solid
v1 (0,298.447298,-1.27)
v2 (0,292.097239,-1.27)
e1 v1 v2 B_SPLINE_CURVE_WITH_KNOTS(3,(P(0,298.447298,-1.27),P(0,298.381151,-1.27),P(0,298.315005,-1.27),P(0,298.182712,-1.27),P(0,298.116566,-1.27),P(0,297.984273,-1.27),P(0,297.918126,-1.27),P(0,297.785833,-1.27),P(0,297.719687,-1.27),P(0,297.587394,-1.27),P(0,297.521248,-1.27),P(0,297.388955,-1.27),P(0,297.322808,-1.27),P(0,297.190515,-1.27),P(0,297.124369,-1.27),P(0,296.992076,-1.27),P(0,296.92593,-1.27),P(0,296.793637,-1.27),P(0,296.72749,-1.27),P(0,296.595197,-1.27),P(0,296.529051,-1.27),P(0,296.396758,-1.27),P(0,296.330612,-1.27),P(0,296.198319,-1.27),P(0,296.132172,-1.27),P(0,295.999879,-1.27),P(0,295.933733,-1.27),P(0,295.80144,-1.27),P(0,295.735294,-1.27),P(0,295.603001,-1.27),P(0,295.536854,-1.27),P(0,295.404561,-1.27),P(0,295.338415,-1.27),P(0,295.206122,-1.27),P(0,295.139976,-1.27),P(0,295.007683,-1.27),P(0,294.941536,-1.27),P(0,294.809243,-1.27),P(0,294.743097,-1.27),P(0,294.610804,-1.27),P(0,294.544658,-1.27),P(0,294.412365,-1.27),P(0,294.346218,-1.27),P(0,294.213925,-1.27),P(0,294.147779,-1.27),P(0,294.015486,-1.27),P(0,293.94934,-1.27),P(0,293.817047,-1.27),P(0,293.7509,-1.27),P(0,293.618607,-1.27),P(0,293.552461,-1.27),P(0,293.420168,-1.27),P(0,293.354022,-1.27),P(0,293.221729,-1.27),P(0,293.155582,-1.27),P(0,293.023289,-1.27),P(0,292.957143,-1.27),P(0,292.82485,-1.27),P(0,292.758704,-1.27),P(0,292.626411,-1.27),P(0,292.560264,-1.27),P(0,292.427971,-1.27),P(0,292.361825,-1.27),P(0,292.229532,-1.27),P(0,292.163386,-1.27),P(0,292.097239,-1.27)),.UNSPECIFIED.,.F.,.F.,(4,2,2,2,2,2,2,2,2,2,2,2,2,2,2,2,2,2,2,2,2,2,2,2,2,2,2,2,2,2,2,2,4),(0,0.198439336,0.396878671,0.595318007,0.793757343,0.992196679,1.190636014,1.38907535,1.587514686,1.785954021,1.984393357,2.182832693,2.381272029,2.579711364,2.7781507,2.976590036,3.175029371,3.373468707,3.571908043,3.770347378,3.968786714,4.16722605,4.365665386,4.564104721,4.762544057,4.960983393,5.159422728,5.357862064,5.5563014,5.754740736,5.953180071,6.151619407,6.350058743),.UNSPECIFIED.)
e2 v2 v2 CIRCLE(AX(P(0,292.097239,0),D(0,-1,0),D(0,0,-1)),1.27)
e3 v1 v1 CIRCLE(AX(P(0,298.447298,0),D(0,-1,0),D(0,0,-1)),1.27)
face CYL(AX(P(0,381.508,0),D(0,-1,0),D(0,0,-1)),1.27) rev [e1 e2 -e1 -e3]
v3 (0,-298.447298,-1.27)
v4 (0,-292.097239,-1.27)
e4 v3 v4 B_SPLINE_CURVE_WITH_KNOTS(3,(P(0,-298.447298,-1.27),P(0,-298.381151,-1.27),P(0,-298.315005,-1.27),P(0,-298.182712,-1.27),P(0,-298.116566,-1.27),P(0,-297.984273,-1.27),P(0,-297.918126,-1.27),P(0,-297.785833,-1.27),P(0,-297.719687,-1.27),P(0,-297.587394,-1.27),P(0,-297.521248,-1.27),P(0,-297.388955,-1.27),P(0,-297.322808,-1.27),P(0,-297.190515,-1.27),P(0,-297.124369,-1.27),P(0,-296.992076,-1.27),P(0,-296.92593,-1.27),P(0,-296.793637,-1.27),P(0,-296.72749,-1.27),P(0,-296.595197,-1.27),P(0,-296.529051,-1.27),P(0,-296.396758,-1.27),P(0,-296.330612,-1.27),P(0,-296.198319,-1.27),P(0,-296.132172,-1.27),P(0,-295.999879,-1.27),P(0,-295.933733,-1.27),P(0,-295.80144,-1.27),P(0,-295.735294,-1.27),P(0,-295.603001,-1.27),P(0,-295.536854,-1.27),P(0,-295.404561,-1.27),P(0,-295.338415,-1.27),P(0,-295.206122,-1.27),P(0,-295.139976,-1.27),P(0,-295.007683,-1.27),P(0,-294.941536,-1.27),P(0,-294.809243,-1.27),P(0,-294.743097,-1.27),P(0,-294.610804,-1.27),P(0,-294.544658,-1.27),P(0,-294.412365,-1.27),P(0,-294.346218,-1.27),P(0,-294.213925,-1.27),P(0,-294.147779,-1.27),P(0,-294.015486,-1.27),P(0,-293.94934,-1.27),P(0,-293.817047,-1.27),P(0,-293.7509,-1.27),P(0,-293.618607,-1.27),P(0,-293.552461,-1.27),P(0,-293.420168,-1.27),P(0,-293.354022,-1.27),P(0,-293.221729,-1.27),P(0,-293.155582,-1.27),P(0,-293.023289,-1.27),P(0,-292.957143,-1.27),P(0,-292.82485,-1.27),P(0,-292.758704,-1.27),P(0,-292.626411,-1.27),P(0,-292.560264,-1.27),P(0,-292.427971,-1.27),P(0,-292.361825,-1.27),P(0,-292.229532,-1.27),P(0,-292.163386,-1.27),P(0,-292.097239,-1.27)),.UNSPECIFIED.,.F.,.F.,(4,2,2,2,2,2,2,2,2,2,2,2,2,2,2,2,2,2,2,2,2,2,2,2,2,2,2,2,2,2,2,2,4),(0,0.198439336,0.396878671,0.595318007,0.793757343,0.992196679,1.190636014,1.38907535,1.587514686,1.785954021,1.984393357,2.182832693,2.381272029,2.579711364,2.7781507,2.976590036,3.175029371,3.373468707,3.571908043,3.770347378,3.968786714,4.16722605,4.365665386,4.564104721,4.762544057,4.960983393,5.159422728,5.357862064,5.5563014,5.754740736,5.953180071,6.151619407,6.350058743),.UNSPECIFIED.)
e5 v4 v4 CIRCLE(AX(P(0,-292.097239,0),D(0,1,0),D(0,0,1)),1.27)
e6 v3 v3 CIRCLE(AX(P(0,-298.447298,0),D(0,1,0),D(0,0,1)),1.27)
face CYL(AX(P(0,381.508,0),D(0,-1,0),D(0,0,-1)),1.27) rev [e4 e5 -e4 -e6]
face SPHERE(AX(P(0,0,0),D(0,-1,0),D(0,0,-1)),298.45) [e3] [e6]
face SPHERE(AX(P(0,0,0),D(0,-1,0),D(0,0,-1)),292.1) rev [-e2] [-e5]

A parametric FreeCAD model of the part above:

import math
import FreeCAD as App
import Part
import Sketcher
from FreeCAD import Vector
Q = App.Units.Quantity

doc = App.newDocument("Part")
params = doc.addObject("Spreadsheet::Sheet", "Params")
for row, (alias, value) in enumerate([
    ("sketch1_radius", "11.5 in"),
    ("sketch1_radius2", "11.75 in"),
    ("revolution_angle", "360 deg"),
    ("sketch2_diameter", "0.1 in"),
], start=1):
    params.set(f"A{row}", alias)
    params.set(f"B{row}", "=" + value)
    params.setAlias(f"B{row}", alias)

body = doc.addObject("PartDesign::Body", "Body")

# Sketch on XZ plane
sketch1 = body.newObject("Sketcher::SketchObject", "Sketch")
sketch1.AttachmentSupport = (doc.getObject("XZ_Plane"), [""])
sketch1.MapMode = "FlatFace"
sketch1.addGeometry([
    Part.LineSegment(Vector(0, -292.1, 0), Vector(0, -298.45, 0)),
    Part.ArcOfCircle(Part.Circle(Vector(0, 0, 0), Vector(0, 0, 1), 298.45), math.radians(90), math.radians(270)),
    Part.LineSegment(Vector(0, 298.45, 0), Vector(0, 292.1, 0)),
    Part.ArcOfCircle(Part.Circle(Vector(0, 0, 0), Vector(0, 0, 1), 292.1), math.radians(90), math.radians(270)),
], False)
sketch1.addConstraint([
    Sketcher.Constraint("Coincident", 0, 2, 1, 2),
    Sketcher.Constraint("Coincident", 1, 1, 2, 1),
    Sketcher.Constraint("Coincident", 2, 2, 3, 1),
    Sketcher.Constraint("Coincident", 3, 2, 0, 1),
    Sketcher.Constraint("Vertical", 0),
    Sketcher.Constraint("Vertical", 2),
    Sketcher.Constraint("Coincident", 1, 3, -1, 1),
    Sketcher.Constraint("Coincident", 3, 3, -1, 1),
    Sketcher.Constraint("PointOnObject", 0, 2, -2),
    Sketcher.Constraint("PointOnObject", 1, 1, -2),
    Sketcher.Constraint("Radius", 3, Q("11.5 in")),
    Sketcher.Constraint("Radius", 1, Q("11.75 in")),
])
sketch1.setExpression("Constraints[10]", "Params.sketch1_radius")
sketch1.setExpression("Constraints[11]", "Params.sketch1_radius2")
revolution = body.newObject("PartDesign::Revolution", "Revolution")
revolution.Profile = sketch1
revolution.ReferenceAxis = (sketch1, ["V_Axis"])
revolution.setExpression("Angle", "Params.revolution_angle")

# Sketch on XZ plane
sketch2 = body.newObject("Sketcher::SketchObject", "Sketch001")
sketch2.AttachmentSupport = (doc.getObject("XZ_Plane"), [""])
sketch2.MapMode = "FlatFace"
sketch2.addGeometry(Part.Circle(Vector(0, 0, 0), Vector(0, 0, 1), 1.27), False)
sketch2.addConstraint([
    Sketcher.Constraint("Coincident", 0, 3, -1, 1),
    Sketcher.Constraint("Diameter", 0, Q("0.1 in")),
])
sketch2.setExpression("Constraints[1]", "Params.sketch2_diameter")
pocket1 = body.newObject("PartDesign::Pocket", "Pocket")
pocket1.Profile = sketch2
pocket1.Type = "ThroughAll"
pocket1.Midplane = True

doc.recompute()
